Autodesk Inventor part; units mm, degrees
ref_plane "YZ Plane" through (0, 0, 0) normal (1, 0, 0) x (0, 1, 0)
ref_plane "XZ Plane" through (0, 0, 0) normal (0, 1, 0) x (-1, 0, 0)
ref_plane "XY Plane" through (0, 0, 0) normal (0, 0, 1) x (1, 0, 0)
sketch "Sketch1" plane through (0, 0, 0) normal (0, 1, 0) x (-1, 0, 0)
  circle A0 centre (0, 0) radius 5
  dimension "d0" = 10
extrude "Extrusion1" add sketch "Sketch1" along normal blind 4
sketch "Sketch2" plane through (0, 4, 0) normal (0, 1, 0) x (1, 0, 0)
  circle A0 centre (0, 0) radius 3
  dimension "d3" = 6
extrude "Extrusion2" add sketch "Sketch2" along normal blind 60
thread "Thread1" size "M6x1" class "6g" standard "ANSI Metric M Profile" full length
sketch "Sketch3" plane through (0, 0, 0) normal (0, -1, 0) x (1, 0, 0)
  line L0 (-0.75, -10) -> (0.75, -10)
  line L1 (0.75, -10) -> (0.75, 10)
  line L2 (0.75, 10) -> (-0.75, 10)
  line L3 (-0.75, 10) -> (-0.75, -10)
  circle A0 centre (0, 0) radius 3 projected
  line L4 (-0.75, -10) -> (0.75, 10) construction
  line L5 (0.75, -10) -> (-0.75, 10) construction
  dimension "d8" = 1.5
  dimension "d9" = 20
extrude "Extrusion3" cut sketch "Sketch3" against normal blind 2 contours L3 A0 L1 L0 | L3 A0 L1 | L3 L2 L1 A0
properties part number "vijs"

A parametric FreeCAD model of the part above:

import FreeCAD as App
import Part
import Sketcher

V = App.Vector
Q = App.Units.Quantity

doc = App.newDocument("Part")
params = doc.addObject("Spreadsheet::Sheet", "Params")
for row, (alias, value) in enumerate([
    ("sketch1_diameter", "10 mm"),
    ("pad1_length", "4 mm"),
    ("sketch2_diameter", "6 mm"),
    ("pad2_length", "60 mm"),
    ("sketch3_height", "20 mm"),
    ("sketch3_width", "1.5 mm"),
    ("pocket1_length", "2 mm"),
], start=1):
    params.set(f"A{row}", alias)
    params.set(f"B{row}", "=" + value)
    params.setAlias(f"B{row}", alias)

body = doc.addObject("PartDesign::Body", "Body")

# Sketch on XZ plane
sketch1 = body.newObject("Sketcher::SketchObject", "Sketch")
sketch1.AttachmentSupport = (doc.getObject("XZ_Plane"), [""])
sketch1.MapMode = "FlatFace"
sketch1.addGeometry(Part.Circle(V(0, 0, 0), V(0, 0, 1), 5), False)
sketch1.addConstraint([
    Sketcher.Constraint("Coincident", 0, 3, -1, 1),
    Sketcher.Constraint("Diameter", 0, Q("10 mm")),
])
sketch1.setExpression("Constraints[1]", "Params.sketch1_diameter")
pad1 = body.newObject("PartDesign::Pad", "Pad")
pad1.Profile = sketch1
pad1.setExpression("Length", "Params.pad1_length")
pad1.Reversed = True

# Sketch on XZ plane
sketch2 = body.newObject("Sketcher::SketchObject", "Sketch001")
sketch2.AttachmentSupport = (doc.getObject("XZ_Plane"), [""])
sketch2.MapMode = "FlatFace"
sketch2.AttachmentOffset = App.Placement(V(0, 0, -4), App.Rotation())
sketch2.addGeometry(Part.Circle(V(0, 0, 0), V(0, 0, 1), 3), False)
sketch2.addConstraint([
    Sketcher.Constraint("Coincident", 0, 3, -1, 1),
    Sketcher.Constraint("Diameter", 0, Q("6 mm")),
])
sketch2.setExpression("Constraints[1]", "Params.sketch2_diameter")
pad2 = body.newObject("PartDesign::Pad", "Pad001")
pad2.Profile = sketch2
pad2.setExpression("Length", "Params.pad2_length")
pad2.Reversed = True

# Sketch on XZ plane
sketch3 = body.newObject("Sketcher::SketchObject", "Sketch002")
sketch3.AttachmentSupport = (doc.getObject("XZ_Plane"), [""])
sketch3.MapMode = "FlatFace"
sketch3.addGeometry([
    Part.LineSegment(V(-0.75, -10, 0), V(0.75, -10, 0)),
    Part.LineSegment(V(0.75, -10, 0), V(0.75, 10, 0)),
    Part.LineSegment(V(0.75, 10, 0), V(-0.75, 10, 0)),
    Part.LineSegment(V(-0.75, 10, 0), V(-0.75, -10, 0)),
], False)
sketch3.addConstraint([
    Sketcher.Constraint("Coincident", 0, 2, 1, 1),
    Sketcher.Constraint("Coincident", 1, 2, 2, 1),
    Sketcher.Constraint("Coincident", 2, 2, 3, 1),
    Sketcher.Constraint("Coincident", 3, 2, 0, 1),
    Sketcher.Constraint("Horizontal", 0),
    Sketcher.Constraint("Vertical", 1),
    Sketcher.Constraint("Horizontal", 2),
    Sketcher.Constraint("Vertical", 3),
    Sketcher.Constraint("Symmetric", 0, 2, 2, 2, -1, 1),
    Sketcher.Constraint("DistanceY", 1, 1, 1, 2, Q("20 mm")),
    Sketcher.Constraint("DistanceX", 0, 1, 0, 2, Q("1.5 mm")),
])
sketch3.setExpression("Constraints[9]", "Params.sketch3_height")
sketch3.setExpression("Constraints[10]", "Params.sketch3_width")
pocket1 = body.newObject("PartDesign::Pocket", "Pocket")
pocket1.Profile = sketch3
pocket1.setExpression("Length", "Params.pocket1_length")

doc.recompute()
